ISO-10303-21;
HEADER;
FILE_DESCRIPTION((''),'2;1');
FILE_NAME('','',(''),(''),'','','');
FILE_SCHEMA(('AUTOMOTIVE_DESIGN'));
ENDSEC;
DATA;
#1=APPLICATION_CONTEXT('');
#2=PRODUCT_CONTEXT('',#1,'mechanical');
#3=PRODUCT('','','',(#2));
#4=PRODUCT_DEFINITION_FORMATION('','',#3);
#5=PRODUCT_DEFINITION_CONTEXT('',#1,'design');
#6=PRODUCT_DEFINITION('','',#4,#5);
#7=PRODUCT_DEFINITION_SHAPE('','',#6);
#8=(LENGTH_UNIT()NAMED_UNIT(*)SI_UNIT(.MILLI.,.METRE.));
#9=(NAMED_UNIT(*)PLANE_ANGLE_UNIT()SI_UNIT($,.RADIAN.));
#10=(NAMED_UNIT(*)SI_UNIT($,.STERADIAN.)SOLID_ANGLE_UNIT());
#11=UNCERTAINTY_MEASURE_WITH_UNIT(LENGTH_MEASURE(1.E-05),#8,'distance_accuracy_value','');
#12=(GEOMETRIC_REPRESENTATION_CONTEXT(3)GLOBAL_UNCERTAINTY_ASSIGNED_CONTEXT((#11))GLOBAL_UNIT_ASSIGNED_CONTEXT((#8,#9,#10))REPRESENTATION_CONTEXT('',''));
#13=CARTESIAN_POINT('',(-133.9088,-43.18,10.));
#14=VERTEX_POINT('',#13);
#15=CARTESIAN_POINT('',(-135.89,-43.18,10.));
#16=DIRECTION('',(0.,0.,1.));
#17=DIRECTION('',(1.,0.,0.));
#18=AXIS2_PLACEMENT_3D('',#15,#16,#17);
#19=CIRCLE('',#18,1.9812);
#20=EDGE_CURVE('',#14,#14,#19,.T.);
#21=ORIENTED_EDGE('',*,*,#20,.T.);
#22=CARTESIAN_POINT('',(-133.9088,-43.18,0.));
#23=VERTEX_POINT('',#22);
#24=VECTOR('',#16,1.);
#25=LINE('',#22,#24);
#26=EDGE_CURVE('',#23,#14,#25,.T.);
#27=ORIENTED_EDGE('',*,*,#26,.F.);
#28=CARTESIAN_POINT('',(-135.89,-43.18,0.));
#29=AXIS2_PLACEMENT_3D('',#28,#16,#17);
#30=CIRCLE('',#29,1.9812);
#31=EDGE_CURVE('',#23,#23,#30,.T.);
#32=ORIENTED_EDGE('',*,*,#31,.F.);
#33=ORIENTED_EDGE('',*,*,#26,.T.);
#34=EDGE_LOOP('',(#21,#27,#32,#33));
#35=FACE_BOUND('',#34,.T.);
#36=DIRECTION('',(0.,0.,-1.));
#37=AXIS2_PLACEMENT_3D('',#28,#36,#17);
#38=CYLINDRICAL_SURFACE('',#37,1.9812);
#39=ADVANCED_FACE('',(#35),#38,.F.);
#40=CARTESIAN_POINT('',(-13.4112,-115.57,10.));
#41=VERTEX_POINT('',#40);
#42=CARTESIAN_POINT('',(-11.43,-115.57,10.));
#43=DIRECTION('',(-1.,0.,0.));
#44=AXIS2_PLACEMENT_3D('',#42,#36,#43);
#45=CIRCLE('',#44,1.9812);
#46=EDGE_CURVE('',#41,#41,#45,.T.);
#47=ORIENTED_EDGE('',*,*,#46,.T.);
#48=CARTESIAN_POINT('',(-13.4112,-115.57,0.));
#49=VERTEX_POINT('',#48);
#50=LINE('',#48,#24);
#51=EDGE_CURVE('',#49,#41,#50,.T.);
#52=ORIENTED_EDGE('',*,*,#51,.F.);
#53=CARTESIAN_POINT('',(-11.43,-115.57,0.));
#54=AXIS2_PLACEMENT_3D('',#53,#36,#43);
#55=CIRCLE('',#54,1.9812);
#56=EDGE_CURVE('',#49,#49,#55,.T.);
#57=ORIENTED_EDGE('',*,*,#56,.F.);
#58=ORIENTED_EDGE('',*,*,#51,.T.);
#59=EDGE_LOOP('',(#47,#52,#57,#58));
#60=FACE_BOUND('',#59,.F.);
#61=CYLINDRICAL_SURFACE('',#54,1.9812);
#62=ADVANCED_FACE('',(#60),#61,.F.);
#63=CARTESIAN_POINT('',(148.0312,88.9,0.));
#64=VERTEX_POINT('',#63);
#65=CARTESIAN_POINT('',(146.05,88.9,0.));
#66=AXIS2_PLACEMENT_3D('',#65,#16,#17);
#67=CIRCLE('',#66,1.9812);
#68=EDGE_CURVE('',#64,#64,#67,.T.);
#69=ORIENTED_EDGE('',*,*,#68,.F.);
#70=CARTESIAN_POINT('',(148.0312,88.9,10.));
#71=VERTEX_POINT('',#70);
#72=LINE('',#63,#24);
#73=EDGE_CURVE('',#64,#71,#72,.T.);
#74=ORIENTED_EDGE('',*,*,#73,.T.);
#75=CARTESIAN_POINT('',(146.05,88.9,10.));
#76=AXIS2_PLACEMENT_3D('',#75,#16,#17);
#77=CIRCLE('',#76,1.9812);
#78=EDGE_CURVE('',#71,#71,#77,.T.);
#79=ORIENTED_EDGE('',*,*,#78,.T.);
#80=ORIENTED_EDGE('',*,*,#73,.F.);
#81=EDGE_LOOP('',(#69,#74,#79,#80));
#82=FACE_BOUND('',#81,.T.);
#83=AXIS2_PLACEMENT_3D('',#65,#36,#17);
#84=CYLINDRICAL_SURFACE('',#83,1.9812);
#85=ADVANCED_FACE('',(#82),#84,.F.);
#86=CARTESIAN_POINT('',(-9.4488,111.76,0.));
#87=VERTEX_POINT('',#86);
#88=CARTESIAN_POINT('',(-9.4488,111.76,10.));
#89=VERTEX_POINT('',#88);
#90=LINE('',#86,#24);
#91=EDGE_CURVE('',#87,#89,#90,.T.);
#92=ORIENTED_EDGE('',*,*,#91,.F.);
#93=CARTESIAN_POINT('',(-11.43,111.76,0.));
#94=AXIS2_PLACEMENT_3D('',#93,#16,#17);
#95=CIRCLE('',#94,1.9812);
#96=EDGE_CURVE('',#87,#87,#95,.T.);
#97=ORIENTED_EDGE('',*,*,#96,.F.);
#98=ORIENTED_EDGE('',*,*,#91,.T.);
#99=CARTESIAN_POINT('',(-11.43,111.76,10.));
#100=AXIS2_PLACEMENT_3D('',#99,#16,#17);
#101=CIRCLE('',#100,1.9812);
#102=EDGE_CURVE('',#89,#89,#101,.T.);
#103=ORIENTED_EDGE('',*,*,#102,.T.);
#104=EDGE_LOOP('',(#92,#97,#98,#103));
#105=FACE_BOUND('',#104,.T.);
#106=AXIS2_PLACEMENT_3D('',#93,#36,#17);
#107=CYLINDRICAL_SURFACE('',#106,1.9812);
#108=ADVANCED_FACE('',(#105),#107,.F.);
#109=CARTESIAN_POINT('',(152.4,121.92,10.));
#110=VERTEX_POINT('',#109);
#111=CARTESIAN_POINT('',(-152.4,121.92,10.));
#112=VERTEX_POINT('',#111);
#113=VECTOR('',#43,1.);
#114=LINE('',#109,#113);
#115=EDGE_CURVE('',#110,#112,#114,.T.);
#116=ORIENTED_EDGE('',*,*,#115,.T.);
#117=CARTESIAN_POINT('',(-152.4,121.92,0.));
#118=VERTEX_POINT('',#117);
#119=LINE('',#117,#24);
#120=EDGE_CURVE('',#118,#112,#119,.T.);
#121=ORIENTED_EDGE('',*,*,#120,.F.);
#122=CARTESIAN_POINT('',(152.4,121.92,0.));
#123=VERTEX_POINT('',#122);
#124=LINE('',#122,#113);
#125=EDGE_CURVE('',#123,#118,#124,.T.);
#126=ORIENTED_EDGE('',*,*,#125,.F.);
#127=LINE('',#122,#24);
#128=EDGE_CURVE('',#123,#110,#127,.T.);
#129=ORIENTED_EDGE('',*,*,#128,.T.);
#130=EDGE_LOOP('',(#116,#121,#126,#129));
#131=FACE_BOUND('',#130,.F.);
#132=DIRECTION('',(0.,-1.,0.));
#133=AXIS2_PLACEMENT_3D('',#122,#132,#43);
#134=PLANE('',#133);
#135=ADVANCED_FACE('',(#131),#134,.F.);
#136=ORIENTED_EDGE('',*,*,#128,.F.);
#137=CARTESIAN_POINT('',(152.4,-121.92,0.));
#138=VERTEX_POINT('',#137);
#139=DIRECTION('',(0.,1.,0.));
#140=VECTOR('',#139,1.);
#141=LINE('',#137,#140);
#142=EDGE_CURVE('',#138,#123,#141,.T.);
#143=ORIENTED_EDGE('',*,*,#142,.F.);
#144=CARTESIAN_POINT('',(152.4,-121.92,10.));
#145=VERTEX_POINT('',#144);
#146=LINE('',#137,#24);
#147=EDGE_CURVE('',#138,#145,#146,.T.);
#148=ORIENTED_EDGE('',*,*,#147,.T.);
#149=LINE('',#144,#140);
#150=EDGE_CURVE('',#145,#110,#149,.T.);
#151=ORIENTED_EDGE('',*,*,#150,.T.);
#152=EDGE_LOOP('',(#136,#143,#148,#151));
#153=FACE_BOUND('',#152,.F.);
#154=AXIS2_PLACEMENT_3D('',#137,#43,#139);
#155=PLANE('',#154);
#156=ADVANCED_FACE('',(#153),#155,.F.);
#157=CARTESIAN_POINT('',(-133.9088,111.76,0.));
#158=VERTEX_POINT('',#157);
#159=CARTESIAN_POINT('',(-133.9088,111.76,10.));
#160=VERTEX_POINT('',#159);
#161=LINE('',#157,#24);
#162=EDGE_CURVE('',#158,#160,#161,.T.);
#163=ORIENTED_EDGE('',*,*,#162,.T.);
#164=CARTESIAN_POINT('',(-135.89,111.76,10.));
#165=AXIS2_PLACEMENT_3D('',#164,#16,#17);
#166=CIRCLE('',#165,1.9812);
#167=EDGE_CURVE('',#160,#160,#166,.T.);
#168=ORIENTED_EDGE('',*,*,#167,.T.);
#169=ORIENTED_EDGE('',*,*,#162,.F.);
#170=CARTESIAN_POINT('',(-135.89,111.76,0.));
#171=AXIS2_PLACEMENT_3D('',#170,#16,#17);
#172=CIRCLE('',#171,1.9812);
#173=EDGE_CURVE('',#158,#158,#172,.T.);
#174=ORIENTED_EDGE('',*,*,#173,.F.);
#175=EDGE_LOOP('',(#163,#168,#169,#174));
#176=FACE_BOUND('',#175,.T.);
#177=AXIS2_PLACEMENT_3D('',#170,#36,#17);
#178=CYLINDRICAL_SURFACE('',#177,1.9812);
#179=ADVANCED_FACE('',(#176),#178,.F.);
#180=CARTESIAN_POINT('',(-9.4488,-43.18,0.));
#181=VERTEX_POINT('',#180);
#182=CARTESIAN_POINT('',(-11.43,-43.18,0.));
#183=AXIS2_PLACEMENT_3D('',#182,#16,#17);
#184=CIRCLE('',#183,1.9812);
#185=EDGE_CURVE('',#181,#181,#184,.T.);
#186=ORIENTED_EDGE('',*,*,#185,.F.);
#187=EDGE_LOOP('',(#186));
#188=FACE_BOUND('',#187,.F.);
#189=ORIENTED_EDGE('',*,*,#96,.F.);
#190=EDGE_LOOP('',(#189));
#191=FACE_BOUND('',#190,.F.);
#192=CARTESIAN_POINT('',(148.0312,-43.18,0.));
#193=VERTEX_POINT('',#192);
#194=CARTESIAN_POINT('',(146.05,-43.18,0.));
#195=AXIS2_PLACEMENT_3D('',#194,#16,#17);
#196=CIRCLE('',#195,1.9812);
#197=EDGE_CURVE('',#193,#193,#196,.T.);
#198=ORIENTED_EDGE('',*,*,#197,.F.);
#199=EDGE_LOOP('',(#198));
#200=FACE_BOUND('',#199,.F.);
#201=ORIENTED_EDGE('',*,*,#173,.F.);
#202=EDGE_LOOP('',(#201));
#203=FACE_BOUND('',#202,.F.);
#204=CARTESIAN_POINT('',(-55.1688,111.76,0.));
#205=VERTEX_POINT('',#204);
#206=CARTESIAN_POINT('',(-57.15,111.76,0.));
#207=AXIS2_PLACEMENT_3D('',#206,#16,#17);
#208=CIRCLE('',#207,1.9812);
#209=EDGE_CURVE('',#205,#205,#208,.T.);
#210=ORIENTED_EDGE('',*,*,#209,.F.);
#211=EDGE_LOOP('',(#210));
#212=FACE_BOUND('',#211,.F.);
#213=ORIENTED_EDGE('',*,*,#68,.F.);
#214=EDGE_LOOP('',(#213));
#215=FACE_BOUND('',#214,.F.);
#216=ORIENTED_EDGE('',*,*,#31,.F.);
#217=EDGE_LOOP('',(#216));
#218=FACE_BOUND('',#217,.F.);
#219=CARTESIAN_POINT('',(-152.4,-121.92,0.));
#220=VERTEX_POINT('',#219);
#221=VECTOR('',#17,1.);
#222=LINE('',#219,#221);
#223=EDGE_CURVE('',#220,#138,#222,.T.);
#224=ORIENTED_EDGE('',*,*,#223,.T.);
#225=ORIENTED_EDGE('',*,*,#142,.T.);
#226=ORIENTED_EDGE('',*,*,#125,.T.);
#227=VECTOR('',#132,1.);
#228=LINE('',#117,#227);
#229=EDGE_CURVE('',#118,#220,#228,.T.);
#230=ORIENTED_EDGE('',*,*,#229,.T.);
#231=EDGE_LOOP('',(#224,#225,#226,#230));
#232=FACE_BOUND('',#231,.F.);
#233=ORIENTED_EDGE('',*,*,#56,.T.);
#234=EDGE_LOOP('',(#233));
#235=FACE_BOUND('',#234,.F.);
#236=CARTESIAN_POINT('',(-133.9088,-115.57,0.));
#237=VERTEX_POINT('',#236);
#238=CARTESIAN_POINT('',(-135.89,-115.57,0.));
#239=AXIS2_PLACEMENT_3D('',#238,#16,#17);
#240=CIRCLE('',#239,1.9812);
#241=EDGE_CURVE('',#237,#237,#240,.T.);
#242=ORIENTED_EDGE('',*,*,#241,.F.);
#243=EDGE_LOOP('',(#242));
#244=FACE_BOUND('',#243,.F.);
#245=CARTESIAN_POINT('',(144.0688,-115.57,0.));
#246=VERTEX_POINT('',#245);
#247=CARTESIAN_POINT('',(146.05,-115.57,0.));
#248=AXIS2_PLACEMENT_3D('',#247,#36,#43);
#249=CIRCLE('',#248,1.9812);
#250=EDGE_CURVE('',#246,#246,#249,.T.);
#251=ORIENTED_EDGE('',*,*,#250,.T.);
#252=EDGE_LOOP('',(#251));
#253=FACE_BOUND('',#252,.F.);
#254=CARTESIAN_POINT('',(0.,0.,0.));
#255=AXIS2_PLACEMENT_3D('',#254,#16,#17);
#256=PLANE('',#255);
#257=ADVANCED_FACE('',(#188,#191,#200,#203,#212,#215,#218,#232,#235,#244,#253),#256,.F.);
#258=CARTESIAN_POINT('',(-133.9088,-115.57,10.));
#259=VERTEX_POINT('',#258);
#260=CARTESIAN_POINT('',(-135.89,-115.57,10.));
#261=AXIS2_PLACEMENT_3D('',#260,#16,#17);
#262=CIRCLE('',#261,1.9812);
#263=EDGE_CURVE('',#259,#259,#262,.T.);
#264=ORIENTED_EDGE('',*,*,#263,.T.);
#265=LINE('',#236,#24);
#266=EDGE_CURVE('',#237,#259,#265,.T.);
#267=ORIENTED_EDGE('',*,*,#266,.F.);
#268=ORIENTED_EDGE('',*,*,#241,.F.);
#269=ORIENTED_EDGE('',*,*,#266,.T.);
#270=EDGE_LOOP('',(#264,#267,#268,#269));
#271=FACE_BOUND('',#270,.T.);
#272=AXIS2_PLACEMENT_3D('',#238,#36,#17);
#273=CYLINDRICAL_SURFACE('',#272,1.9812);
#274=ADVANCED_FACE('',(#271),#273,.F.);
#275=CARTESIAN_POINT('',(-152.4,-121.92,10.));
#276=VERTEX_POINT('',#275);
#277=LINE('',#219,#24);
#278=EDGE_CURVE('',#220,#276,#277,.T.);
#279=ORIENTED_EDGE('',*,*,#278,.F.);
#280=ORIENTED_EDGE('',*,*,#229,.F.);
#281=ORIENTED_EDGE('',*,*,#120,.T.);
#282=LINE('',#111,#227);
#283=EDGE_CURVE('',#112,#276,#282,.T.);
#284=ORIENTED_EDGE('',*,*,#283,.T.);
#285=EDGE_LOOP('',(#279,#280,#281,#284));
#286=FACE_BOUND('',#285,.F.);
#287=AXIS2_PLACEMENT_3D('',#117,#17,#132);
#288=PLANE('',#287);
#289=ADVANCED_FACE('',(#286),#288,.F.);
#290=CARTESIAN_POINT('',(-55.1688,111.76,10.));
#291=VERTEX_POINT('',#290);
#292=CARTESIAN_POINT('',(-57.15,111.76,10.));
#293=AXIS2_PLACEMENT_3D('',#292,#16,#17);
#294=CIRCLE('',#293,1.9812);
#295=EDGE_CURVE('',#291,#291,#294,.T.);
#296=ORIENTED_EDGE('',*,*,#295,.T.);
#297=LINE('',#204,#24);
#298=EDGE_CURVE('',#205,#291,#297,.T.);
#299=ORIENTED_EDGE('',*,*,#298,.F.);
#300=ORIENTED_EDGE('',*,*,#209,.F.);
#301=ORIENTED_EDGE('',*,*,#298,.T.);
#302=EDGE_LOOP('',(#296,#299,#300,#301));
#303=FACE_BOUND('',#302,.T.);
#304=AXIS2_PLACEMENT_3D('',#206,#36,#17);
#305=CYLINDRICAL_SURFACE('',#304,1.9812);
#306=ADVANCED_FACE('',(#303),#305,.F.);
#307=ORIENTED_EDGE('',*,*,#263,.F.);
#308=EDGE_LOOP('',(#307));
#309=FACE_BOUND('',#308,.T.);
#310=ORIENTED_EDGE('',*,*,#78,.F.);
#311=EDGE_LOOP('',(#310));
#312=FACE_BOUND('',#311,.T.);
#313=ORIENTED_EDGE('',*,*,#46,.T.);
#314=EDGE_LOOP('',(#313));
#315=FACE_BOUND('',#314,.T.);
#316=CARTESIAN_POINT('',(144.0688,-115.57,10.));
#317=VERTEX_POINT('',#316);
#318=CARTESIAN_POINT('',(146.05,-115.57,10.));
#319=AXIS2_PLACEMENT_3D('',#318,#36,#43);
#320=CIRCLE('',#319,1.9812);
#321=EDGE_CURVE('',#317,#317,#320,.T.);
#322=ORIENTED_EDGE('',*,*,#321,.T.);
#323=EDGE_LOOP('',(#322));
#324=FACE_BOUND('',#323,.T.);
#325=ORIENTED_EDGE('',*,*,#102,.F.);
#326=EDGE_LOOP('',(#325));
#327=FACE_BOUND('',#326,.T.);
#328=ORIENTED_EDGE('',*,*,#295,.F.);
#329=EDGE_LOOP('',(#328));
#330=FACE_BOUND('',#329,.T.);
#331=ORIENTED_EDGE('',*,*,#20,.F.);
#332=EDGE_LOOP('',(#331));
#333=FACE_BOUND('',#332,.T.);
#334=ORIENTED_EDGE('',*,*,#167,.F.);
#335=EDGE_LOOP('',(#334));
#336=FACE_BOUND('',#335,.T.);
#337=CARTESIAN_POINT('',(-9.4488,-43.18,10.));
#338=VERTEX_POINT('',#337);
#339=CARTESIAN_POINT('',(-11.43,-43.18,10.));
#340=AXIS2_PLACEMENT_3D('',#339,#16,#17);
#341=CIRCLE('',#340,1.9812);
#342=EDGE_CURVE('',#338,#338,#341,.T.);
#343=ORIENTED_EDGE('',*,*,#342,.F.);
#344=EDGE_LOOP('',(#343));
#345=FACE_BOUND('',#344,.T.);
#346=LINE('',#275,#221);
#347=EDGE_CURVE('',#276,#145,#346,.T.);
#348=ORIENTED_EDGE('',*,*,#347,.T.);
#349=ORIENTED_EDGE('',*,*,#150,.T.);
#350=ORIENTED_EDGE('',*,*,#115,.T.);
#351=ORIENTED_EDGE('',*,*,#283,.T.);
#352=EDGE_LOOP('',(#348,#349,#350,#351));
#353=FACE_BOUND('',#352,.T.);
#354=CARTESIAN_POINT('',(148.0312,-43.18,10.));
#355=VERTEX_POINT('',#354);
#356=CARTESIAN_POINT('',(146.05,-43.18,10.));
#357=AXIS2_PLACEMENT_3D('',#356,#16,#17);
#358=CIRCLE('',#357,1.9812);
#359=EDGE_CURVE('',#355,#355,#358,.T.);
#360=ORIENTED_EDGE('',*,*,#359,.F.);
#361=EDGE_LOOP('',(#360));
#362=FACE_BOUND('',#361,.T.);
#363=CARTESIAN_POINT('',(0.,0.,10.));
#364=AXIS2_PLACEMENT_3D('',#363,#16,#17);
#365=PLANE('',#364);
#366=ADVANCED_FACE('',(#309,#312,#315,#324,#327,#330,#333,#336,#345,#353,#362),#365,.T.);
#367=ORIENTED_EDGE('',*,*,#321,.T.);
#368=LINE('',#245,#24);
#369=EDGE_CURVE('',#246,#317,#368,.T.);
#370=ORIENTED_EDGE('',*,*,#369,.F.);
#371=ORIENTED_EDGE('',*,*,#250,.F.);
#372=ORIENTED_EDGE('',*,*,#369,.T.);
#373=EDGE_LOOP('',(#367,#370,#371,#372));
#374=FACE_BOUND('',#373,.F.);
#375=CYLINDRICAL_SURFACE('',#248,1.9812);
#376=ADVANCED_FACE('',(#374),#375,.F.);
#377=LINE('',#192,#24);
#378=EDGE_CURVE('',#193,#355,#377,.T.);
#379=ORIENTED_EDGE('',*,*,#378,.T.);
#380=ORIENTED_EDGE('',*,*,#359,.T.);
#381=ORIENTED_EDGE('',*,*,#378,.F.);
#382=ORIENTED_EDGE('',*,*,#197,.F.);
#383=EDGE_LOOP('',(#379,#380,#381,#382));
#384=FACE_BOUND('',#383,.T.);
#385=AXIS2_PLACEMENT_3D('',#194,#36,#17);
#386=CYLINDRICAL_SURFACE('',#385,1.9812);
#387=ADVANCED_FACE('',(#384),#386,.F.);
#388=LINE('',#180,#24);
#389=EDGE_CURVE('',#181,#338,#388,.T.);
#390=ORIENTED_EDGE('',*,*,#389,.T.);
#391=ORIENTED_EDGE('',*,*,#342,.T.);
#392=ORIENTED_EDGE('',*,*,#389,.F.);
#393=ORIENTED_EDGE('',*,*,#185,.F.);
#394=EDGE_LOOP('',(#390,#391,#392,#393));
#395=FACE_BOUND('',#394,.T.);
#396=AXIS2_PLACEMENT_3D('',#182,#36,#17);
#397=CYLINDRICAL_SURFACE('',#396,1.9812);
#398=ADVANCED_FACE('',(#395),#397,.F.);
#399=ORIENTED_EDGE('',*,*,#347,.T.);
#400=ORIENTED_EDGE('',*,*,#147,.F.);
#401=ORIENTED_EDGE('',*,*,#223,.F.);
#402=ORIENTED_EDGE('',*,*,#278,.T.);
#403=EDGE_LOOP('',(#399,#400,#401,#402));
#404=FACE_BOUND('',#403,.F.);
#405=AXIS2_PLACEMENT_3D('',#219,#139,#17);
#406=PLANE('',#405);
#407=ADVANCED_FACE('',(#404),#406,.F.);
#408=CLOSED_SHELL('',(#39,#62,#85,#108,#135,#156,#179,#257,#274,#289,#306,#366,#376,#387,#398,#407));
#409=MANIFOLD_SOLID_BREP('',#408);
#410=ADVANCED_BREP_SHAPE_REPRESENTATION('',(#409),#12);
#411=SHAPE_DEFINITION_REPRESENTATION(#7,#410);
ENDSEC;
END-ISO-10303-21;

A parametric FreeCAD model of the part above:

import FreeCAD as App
import Part
import Sketcher
from FreeCAD import Vector
Q = App.Units.Quantity

doc = App.newDocument("Part")
body = doc.addObject("PartDesign::Body", "Body")

sketch1 = doc.addObject("Sketcher::SketchObject", "Sketch")
body.addObject(sketch1)
sketch1.AttachmentSupport = (doc.XY_Plane, [""])
sketch1.MapMode = "FlatFace"
sketch1.addGeometry([
    Part.LineSegment(Vector(-152.4, -121.92, 0), Vector(152.4, -121.92, 0)),
    Part.LineSegment(Vector(152.4, -121.92, 0), Vector(152.4, 121.92, 0)),
    Part.LineSegment(Vector(152.4, 121.92, 0), Vector(-152.4, 121.92, 0)),
    Part.LineSegment(Vector(-152.4, 121.92, 0), Vector(-152.4, -121.92, 0)),
    Part.Circle(Vector(-135.89, -115.57, 0), Vector(0, 0, 1), 1.9812),
    Part.Circle(Vector(-11.43, -115.57, 0), Vector(0, 0, 1), 1.9812),
    Part.Circle(Vector(-135.89, -43.18, 0), Vector(0, 0, 1), 1.9812),
    Part.Circle(Vector(-11.43, -43.18, 0), Vector(0, 0, 1), 1.9812),
    Part.Circle(Vector(146.05, -115.57, 0), Vector(0, 0, 1), 1.9812),
    Part.Circle(Vector(146.05, -43.18, 0), Vector(0, 0, 1), 1.9812),
    Part.Circle(Vector(-135.89, 111.76, 0), Vector(0, 0, 1), 1.9812),
    Part.Circle(Vector(-57.15, 111.76, 0), Vector(0, 0, 1), 1.9812),
    Part.Circle(Vector(-11.43, 111.76, 0), Vector(0, 0, 1), 1.9812),
    Part.Circle(Vector(146.05, 88.9, 0), Vector(0, 0, 1), 1.9812),
], False)
sketch1.addConstraint([
    Sketcher.Constraint("Coincident", 0, 2, 1, 1),
    Sketcher.Constraint("Coincident", 1, 2, 2, 1),
    Sketcher.Constraint("Coincident", 2, 2, 3, 1),
    Sketcher.Constraint("Coincident", 3, 2, 0, 1),
    Sketcher.Constraint("Horizontal", 0),
    Sketcher.Constraint("Vertical", 1),
    Sketcher.Constraint("Horizontal", 2),
    Sketcher.Constraint("Vertical", 3),
    Sketcher.Constraint("Equal", 4, 5),
    Sketcher.Constraint("Equal", 5, 6),
    Sketcher.Constraint("Equal", 6, 7),
    Sketcher.Constraint("Equal", 7, 8),
    Sketcher.Constraint("Equal", 8, 9),
    Sketcher.Constraint("Equal", 9, 10),
    Sketcher.Constraint("Equal", 10, 11),
    Sketcher.Constraint("Equal", 11, 12),
    Sketcher.Constraint("Equal", 12, 13),
    Sketcher.Constraint("Symmetric", 0, 2, 2, 2, -1, 1),
    Sketcher.Constraint("Horizontal", 4, 3, 5, 3),
    Sketcher.Constraint("Horizontal", 6, 3, 7, 3),
    Sketcher.Constraint("Horizontal", 5, 3, 8, 3),
    Sketcher.Constraint("Horizontal", 7, 3, 9, 3),
    Sketcher.Constraint("Horizontal", 10, 3, 11, 3),
    Sketcher.Constraint("Horizontal", 11, 3, 12, 3),
    Sketcher.Constraint("Vertical", 4, 3, 6, 3),
    Sketcher.Constraint("Vertical", 5, 3, 7, 3),
    Sketcher.Constraint("Vertical", 8, 3, 9, 3),
    Sketcher.Constraint("Vertical", 6, 3, 10, 3),
    Sketcher.Constraint("Vertical", 7, 3, 12, 3),
    Sketcher.Constraint("Vertical", 9, 3, 13, 3),
    Sketcher.Constraint("DistanceX", 0, 1, 0, 2, Q("12 in")),
    Sketcher.Constraint("Diameter", 4, Q("0.156 in")),
    Sketcher.Constraint("DistanceY", 1, 1, 1, 2, Q("9.6 in")),
    Sketcher.Constraint("DistanceX", 11, 3, 13, 3, Q("8 in")),
    Sketcher.Constraint("DistanceY", 6, 3, -1, 1, Q("1.7 in")),
    Sketcher.Constraint("DistanceY", -1, 1, 10, 3, Q("4.4 in")),
    Sketcher.Constraint("DistanceY", -1, 1, 13, 3, Q("3.5 in")),
    Sketcher.Constraint("DistanceX", 4, 3, 5, 3, Q("4.9 in")),
    Sketcher.Constraint("DistanceX", 5, 3, 8, 3, Q("6.2 in")),
    Sketcher.Constraint("DistanceX", 4, 3, -1, 1, Q("5.35 in")),
    Sketcher.Constraint("DistanceY", 4, 3, -1, 1, Q("4.55 in")),
])
pad1 = doc.addObject("PartDesign::Pad", "Pad")
body.addObject(pad1)
pad1.Profile = sketch1
pad1.Length = 10

doc.recompute()
